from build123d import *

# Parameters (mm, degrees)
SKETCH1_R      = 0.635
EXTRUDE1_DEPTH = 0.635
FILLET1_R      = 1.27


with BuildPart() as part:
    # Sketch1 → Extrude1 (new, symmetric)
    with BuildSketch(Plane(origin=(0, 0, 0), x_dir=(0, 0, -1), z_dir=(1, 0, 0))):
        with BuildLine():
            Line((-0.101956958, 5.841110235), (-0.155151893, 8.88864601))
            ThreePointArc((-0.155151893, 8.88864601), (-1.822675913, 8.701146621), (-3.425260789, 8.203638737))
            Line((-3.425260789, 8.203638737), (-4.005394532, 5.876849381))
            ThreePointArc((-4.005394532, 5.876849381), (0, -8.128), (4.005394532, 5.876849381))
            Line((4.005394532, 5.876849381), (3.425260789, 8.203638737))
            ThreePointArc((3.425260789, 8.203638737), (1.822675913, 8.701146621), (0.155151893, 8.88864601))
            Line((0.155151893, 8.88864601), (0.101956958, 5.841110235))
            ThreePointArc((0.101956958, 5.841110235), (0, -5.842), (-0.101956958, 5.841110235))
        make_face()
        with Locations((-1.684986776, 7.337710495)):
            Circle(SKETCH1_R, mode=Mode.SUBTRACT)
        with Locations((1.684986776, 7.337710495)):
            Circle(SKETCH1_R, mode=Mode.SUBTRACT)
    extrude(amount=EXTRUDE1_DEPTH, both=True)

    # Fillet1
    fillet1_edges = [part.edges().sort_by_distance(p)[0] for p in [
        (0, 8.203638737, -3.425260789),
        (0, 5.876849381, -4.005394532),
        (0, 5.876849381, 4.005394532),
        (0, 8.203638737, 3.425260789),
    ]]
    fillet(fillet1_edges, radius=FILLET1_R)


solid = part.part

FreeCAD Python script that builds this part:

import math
import FreeCAD as App
import Part
import Sketcher

V = App.Vector
Q = App.Units.Quantity


def edges_at(feature, points):
    """Names of the edges that pass closest to the given points."""
    edges = feature.Shape.Edges
    near = lambda p: min(range(len(edges)), key=lambda i: edges[i].distToShape(Part.Vertex(*p))[0])
    return sorted({f"Edge{near(p) + 1}" for p in points})

doc = App.newDocument("Part")
body = doc.addObject("PartDesign::Body", "Body")

# Sketch on YZ plane
sketch1 = body.newObject("Sketcher::SketchObject", "Sketch")
sketch1.AttachmentSupport = (doc.getObject("YZ_Plane"), [""])
sketch1.MapMode = "FlatFace"
sketch1.addGeometry(Part.LineSegment(V(5.84, 0.1, 0), V(8.89, 0.16, 0)), False)
sketch1.addGeometry(Part.ArcOfCircle(Part.Circle(V(0, 0, 0), V(0, 0, 1), 8.89), math.radians(1), math.radians(23)), False)
sketch1.addGeometry(Part.LineSegment(V(8.2, 3.43, 0), V(5.88, 4.01, 0)), False)
sketch1.addGeometry(Part.ArcOfCircle(Part.Circle(V(-0.55, 0, 0), V(0, 0, 1), 7.58), math.radians(32), math.radians(328)), False)
sketch1.addGeometry(Part.LineSegment(V(5.88, -4.01, 0), V(8.2, -3.43, 0)), False)
sketch1.addGeometry(Part.ArcOfCircle(Part.Circle(V(0, 0, 0), V(0, 0, 1), 8.89), math.radians(-23), math.radians(-1)), False)
sketch1.addGeometry(Part.LineSegment(V(8.89, -0.16, 0), V(5.84, -0.1, 0)), False)
sketch1.addGeometry(Part.ArcOfCircle(Part.Circle(V(0, 0, 0), V(0, 0, 1), 5.84), math.radians(1), math.radians(359)), False)
sketch1.addGeometry(Part.Circle(V(7.34, 1.68, 0), V(0, 0, 1), 0.64), False)
sketch1.addGeometry(Part.Circle(V(7.34, -1.68, 0), V(0, 0, 1), 0.64), False)
sketch1.addConstraint(Sketcher.Constraint("Coincident", 0, 2, 1, 1))
sketch1.addConstraint(Sketcher.Constraint("Coincident", 1, 2, 2, 1))
sketch1.addConstraint(Sketcher.Constraint("Coincident", 2, 2, 3, 1))
sketch1.addConstraint(Sketcher.Constraint("Coincident", 3, 2, 4, 1))
sketch1.addConstraint(Sketcher.Constraint("Coincident", 4, 2, 5, 1))
sketch1.addConstraint(Sketcher.Constraint("Coincident", 5, 2, 6, 1))
sketch1.addConstraint(Sketcher.Constraint("Coincident", 6, 2, 7, 2))
sketch1.addConstraint(Sketcher.Constraint("Coincident", 7, 1, 0, 1))
sketch1.addConstraint(Sketcher.Constraint("Coincident", 1, 3, -1, 1))
sketch1.addConstraint(Sketcher.Constraint("Coincident", 5, 3, -1, 1))
sketch1.addConstraint(Sketcher.Constraint("Coincident", 7, 3, -1, 1))
sketch1.addConstraint(Sketcher.Constraint("Equal", 1, 5))
sketch1.addConstraint(Sketcher.Constraint("Equal", 8, 9))
sketch1.addConstraint(Sketcher.Constraint("Symmetric", 8, 3, 9, 3, -1))
sketch1.addConstraint(Sketcher.Constraint("Symmetric", 2, 2, 3, 2, -1))
sketch1.addConstraint(Sketcher.Constraint("Vertical", 1, 2, 4, 2))
sketch1.addConstraint(Sketcher.Constraint("Vertical", 0, 2, 5, 2))
sketch1.addConstraint(Sketcher.Constraint("Vertical", 6, 2, 7, 1))
sketch1.addConstraint(Sketcher.Constraint("Diameter", 8, Q("0.05 in")))
sketch1.addConstraint(Sketcher.Constraint("Radius", 1, Q("0.35 in")))
sketch1.addConstraint(Sketcher.Constraint("Radius", 7, Q("0.23 in")))
sketch1.addConstraint(Sketcher.Constraint("Angle", 0, Q("1 deg")))
sketch1.addConstraint(Sketcher.Constraint("Angle", 2, Q("166 deg")))
sketch1.addConstraint(Sketcher.Constraint("Radius", 3, 7.575197))
sketch1.addConstraint(Sketcher.Constraint("DistanceX", 6, 2, 9, 3, 1.4966))
sketch1.addConstraint(Sketcher.Constraint("Distance", 2, 2.398021))
sketch1.addConstraint(Sketcher.Constraint("DistanceX", -1, 1, 8, 3, 7.33771))
sketch1.addConstraint(Sketcher.Constraint("DistanceX", -1, 1, 1, 2, 8.203639))
sketch1.addConstraint(Sketcher.Constraint("DistanceY", 9, 3, 0, 2, 1.840139))
pad1 = body.newObject("PartDesign::Pad", "Pad")
pad1.Profile = sketch1
pad1.Length = Q("0.05 in")
pad1.Midplane = True
doc.recompute()

fillet = body.newObject("PartDesign::Fillet", "Fillet")
fillet.Base = (pad1, edges_at(pad1, [
    (0, 8.204, -3.425),
    (0, 5.877, -4.005),
    (0, 5.877, 4.005),
    (0, 8.204, 3.425),
]))
fillet.Radius = Q("0.05 in")

doc.recompute()
